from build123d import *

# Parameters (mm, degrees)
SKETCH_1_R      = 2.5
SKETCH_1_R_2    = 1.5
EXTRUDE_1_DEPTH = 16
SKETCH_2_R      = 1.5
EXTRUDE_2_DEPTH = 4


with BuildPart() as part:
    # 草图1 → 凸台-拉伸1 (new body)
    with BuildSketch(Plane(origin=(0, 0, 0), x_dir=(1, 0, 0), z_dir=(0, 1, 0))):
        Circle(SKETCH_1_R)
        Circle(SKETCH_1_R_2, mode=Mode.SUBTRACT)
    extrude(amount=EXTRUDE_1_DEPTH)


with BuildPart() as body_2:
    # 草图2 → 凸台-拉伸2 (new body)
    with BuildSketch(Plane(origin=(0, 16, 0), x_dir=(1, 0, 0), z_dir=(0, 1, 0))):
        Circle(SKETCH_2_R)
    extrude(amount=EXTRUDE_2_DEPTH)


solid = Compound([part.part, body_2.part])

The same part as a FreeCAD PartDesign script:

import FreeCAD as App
import Part
import Sketcher

V = App.Vector

doc = App.newDocument("Part")
body = doc.addObject("PartDesign::Body", "Body")

# Sketch on XZ plane
sketch1 = body.newObject("Sketcher::SketchObject", "Sketch")
sketch1.AttachmentSupport = (doc.getObject("XZ_Plane"), [""])
sketch1.MapMode = "FlatFace"
sketch1.addGeometry(Part.Circle(V(0, 0, 0), V(0, 0, 1), 2.5), False)
sketch1.addGeometry(Part.Circle(V(0, 0, 0), V(0, 0, 1), 1.5), False)
sketch1.addConstraint(Sketcher.Constraint("Coincident", 0, 3, -1, 1))
sketch1.addConstraint(Sketcher.Constraint("Coincident", 1, 3, -1, 1))
sketch1.addConstraint(Sketcher.Constraint("Diameter", 0, 5.0))
sketch1.addConstraint(Sketcher.Constraint("Diameter", 1, 3.0))
pad1 = body.newObject("PartDesign::Pad", "Pad")
pad1.Profile = sketch1
pad1.Length = 16
pad1.Reversed = True
body2 = doc.addObject("PartDesign::Body", "Body001")

# Sketch on XZ plane
sketch2 = body2.newObject("Sketcher::SketchObject", "Sketch001")
sketch2.AttachmentSupport = (doc.getObject("XZ_Plane001"), [""])
sketch2.MapMode = "FlatFace"
sketch2.AttachmentOffset = App.Placement(V(0, 0, -16), App.Rotation())
sketch2.addGeometry(Part.Circle(V(0, 0, 0), V(0, 0, 1), 1.5), False)
sketch2.addConstraint(Sketcher.Constraint("Coincident", 0, 3, -1, 1))
sketch2.addConstraint(Sketcher.Constraint("Diameter", 0, 3.0))
pad2 = body2.newObject("PartDesign::Pad", "Pad001")
pad2.Profile = sketch2
pad2.Length = 4
pad2.Reversed = True

doc.recompute()
